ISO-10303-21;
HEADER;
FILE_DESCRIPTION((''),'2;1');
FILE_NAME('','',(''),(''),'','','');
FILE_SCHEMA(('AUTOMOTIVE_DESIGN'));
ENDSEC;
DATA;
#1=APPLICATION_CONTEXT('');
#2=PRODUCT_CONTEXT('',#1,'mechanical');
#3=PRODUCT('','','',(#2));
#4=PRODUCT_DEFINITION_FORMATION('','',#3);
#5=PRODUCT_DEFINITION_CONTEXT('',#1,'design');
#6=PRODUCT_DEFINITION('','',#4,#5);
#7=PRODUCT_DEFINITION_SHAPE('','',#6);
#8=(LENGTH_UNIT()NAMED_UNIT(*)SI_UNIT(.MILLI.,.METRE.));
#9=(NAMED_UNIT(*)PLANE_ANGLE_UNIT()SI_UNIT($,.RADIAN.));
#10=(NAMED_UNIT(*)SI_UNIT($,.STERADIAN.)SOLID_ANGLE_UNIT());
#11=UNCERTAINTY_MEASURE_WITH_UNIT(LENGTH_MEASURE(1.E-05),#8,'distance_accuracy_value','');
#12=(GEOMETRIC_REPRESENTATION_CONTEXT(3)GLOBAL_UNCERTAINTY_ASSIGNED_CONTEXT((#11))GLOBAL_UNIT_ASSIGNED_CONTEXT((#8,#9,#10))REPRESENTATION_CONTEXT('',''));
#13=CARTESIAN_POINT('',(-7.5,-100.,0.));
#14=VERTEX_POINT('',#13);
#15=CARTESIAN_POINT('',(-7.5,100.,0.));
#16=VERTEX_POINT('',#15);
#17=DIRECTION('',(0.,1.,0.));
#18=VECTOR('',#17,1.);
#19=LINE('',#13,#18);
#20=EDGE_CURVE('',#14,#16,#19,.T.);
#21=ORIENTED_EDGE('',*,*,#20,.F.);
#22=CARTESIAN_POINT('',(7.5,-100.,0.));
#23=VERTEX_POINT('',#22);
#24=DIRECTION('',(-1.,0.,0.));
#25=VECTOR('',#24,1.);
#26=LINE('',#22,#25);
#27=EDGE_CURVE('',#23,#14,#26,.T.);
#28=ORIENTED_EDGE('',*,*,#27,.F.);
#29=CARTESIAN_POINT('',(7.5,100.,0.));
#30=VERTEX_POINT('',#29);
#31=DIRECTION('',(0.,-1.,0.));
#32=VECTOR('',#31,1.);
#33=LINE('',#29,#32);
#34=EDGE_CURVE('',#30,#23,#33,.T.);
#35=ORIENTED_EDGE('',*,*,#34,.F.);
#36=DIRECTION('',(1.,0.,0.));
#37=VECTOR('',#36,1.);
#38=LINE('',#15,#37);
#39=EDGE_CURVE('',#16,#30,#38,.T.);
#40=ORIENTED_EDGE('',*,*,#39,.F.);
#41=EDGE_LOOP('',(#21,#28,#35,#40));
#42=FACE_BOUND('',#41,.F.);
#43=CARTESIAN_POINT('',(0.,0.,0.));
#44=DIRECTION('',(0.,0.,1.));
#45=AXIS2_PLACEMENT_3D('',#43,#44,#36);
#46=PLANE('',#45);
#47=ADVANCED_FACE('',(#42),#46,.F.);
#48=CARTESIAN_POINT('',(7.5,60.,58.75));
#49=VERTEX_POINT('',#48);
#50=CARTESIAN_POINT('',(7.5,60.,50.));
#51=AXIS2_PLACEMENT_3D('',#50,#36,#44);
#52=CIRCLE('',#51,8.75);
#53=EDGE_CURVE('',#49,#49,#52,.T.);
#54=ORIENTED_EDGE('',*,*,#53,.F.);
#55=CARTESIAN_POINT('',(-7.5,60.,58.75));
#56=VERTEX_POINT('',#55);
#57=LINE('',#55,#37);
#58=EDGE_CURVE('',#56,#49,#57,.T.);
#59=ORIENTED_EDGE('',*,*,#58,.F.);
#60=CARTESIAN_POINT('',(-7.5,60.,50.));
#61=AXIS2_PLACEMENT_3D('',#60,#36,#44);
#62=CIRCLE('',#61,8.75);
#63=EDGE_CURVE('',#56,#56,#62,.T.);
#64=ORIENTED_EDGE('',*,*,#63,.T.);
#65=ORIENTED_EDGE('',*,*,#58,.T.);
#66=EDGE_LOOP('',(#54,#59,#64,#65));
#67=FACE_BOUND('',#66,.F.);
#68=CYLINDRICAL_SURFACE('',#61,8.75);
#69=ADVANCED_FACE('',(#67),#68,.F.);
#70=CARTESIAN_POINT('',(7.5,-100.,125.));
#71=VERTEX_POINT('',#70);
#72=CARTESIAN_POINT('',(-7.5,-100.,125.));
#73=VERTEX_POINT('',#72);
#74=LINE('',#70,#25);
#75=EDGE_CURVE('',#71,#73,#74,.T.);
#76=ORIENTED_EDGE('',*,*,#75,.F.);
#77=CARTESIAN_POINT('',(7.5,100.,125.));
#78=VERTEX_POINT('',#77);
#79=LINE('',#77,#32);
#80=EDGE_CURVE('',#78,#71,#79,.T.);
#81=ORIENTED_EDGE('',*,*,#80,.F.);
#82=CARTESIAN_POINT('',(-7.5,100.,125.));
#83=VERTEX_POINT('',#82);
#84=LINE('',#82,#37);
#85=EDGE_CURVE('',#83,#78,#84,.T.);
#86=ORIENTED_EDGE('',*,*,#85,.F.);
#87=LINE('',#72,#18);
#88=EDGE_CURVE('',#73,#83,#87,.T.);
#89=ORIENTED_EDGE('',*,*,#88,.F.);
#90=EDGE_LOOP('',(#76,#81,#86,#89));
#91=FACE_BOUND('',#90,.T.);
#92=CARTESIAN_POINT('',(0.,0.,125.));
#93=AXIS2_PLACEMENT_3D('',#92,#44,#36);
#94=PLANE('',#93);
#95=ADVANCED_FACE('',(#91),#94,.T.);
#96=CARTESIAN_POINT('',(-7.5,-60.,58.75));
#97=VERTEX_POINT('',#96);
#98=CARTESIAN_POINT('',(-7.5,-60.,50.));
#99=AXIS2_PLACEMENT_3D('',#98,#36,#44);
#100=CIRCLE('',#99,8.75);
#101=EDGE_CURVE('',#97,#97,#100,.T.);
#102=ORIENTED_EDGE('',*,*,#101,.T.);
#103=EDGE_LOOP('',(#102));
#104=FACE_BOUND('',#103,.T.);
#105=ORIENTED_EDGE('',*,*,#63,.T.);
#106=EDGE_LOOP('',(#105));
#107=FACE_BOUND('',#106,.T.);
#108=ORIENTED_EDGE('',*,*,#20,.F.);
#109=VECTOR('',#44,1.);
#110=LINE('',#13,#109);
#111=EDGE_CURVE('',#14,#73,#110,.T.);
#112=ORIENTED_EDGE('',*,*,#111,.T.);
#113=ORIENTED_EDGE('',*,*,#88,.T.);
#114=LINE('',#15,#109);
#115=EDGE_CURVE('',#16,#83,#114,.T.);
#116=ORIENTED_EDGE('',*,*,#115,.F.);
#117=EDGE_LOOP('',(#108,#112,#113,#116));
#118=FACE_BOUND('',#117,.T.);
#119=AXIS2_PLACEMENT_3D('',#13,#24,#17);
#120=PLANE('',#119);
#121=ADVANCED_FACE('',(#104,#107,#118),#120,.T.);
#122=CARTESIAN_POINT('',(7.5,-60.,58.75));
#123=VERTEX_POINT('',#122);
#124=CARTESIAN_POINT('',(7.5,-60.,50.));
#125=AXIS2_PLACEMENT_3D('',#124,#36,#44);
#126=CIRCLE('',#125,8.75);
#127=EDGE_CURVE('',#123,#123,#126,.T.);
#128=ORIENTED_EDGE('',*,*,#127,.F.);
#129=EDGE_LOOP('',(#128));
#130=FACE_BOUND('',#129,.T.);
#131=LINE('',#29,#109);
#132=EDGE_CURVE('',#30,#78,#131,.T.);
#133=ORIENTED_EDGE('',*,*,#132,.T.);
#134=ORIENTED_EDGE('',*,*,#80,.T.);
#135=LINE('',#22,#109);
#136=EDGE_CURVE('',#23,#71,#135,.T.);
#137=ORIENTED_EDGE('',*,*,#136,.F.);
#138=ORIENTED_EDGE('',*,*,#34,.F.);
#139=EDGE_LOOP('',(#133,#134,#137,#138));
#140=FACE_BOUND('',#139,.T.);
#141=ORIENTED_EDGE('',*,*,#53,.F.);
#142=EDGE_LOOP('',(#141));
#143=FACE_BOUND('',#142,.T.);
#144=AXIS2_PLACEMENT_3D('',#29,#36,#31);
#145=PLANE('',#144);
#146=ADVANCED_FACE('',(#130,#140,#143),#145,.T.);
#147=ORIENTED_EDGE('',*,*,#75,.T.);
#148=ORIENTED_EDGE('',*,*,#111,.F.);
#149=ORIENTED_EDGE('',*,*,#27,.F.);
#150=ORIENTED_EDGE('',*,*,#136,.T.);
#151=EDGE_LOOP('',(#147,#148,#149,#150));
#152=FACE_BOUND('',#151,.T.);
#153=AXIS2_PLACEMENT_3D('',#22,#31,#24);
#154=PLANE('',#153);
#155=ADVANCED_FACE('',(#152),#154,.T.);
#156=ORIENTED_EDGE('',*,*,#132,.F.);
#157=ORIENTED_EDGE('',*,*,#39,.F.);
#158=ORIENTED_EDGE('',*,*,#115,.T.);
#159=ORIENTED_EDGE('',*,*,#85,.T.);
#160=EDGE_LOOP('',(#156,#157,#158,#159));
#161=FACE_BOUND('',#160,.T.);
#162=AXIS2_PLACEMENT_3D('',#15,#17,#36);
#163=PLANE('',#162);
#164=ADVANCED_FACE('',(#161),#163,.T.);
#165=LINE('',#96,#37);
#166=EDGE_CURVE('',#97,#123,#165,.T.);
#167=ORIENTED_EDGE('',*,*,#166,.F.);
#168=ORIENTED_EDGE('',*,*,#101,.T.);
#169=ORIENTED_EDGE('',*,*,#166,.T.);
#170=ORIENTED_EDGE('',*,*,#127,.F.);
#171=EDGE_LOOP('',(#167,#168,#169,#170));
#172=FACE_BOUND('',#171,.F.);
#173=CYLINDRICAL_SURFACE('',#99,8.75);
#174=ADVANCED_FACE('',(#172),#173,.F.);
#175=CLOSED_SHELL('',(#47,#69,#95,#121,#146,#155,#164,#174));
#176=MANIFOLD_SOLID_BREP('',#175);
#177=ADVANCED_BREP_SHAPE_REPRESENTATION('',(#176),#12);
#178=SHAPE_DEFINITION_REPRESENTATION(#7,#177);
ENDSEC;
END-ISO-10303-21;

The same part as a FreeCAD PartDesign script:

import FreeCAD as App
import Part
import Sketcher
from FreeCAD import Vector
Q = App.Units.Quantity

doc = App.newDocument("Part")
body = doc.addObject("PartDesign::Body", "Body")

# Sketch on XY plane
sketch1 = body.newObject("Sketcher::SketchObject", "Sketch")
sketch1.AttachmentSupport = (doc.getObject("XY_Plane"), [""])
sketch1.MapMode = "FlatFace"
sketch1.addGeometry(Part.LineSegment(Vector(-8, -100, 0), Vector(8, -100, 0)), False)
sketch1.addGeometry(Part.LineSegment(Vector(8, -100, 0), Vector(8, 100, 0)), False)
sketch1.addGeometry(Part.LineSegment(Vector(8, 100, 0), Vector(-8, 100, 0)), False)
sketch1.addGeometry(Part.LineSegment(Vector(-8, 100, 0), Vector(-8, -100, 0)), False)
sketch1.addConstraint(Sketcher.Constraint("Coincident", 0, 2, 1, 1))
sketch1.addConstraint(Sketcher.Constraint("Coincident", 1, 2, 2, 1))
sketch1.addConstraint(Sketcher.Constraint("Coincident", 2, 2, 3, 1))
sketch1.addConstraint(Sketcher.Constraint("Coincident", 3, 2, 0, 1))
sketch1.addConstraint(Sketcher.Constraint("Horizontal", 0))
sketch1.addConstraint(Sketcher.Constraint("Vertical", 1))
sketch1.addConstraint(Sketcher.Constraint("Horizontal", 2))
sketch1.addConstraint(Sketcher.Constraint("Vertical", 3))
sketch1.addConstraint(Sketcher.Constraint("Symmetric", 0, 2, 2, 2, -1, 1))
sketch1.addConstraint(Sketcher.Constraint("DistanceX", 0, 1, 0, 2, Q("15 mm")))
sketch1.addConstraint(Sketcher.Constraint("DistanceY", 1, 1, 1, 2, Q("200 mm")))
pad1 = body.newObject("PartDesign::Pad", "Pad")
pad1.Profile = sketch1
pad1.Length = 125

# Sketch on YZ plane
sketch2 = body.newObject("Sketcher::SketchObject", "Sketch001")
sketch2.AttachmentSupport = (doc.getObject("YZ_Plane"), [""])
sketch2.MapMode = "FlatFace"
sketch2.AttachmentOffset = App.Placement(Vector(0, 0, -7.5), App.Rotation())
sketch2.addGeometry(Part.Circle(Vector(60, 50, 0), Vector(0, 0, 1), 9), False)
sketch2.addConstraint(Sketcher.Constraint("Diameter", 0, Q("17.5 mm")))
sketch2.addConstraint(Sketcher.Constraint("DistanceX", -1, 1, 0, 3, Q("60 mm")))
sketch2.addConstraint(Sketcher.Constraint("DistanceY", -1, 1, 0, 3, Q("50 mm")))
doc.recompute()
hole = body.newObject("PartDesign::Hole", "Hole")
hole.Profile = sketch2
hole.ThreadType = "None"
hole.Diameter = 17.5
hole.DepthType = "ThroughAll"
hole.Reversed = True

# Sketch on YZ plane
sketch3 = body.newObject("Sketcher::SketchObject", "Sketch002")
sketch3.AttachmentSupport = (doc.getObject("YZ_Plane"), [""])
sketch3.MapMode = "FlatFace"
sketch3.AttachmentOffset = App.Placement(Vector(0, 0, -7.5), App.Rotation())
sketch3.addGeometry(Part.Circle(Vector(-60, 50, 0), Vector(0, 0, 1), 9), False)
sketch3.addConstraint(Sketcher.Constraint("Diameter", 0, Q("17.5 mm")))
sketch3.addConstraint(Sketcher.Constraint("DistanceX", 0, 3, -1, 1, Q("60 mm")))
sketch3.addConstraint(Sketcher.Constraint("DistanceY", -1, 1, 0, 3, Q("50 mm")))
doc.recompute()
hole2 = body.newObject("PartDesign::Hole", "Hole001")
hole2.Profile = sketch3
hole2.ThreadType = "None"
hole2.Diameter = 17.5
hole2.DepthType = "ThroughAll"
hole2.Reversed = True

doc.recompute()
